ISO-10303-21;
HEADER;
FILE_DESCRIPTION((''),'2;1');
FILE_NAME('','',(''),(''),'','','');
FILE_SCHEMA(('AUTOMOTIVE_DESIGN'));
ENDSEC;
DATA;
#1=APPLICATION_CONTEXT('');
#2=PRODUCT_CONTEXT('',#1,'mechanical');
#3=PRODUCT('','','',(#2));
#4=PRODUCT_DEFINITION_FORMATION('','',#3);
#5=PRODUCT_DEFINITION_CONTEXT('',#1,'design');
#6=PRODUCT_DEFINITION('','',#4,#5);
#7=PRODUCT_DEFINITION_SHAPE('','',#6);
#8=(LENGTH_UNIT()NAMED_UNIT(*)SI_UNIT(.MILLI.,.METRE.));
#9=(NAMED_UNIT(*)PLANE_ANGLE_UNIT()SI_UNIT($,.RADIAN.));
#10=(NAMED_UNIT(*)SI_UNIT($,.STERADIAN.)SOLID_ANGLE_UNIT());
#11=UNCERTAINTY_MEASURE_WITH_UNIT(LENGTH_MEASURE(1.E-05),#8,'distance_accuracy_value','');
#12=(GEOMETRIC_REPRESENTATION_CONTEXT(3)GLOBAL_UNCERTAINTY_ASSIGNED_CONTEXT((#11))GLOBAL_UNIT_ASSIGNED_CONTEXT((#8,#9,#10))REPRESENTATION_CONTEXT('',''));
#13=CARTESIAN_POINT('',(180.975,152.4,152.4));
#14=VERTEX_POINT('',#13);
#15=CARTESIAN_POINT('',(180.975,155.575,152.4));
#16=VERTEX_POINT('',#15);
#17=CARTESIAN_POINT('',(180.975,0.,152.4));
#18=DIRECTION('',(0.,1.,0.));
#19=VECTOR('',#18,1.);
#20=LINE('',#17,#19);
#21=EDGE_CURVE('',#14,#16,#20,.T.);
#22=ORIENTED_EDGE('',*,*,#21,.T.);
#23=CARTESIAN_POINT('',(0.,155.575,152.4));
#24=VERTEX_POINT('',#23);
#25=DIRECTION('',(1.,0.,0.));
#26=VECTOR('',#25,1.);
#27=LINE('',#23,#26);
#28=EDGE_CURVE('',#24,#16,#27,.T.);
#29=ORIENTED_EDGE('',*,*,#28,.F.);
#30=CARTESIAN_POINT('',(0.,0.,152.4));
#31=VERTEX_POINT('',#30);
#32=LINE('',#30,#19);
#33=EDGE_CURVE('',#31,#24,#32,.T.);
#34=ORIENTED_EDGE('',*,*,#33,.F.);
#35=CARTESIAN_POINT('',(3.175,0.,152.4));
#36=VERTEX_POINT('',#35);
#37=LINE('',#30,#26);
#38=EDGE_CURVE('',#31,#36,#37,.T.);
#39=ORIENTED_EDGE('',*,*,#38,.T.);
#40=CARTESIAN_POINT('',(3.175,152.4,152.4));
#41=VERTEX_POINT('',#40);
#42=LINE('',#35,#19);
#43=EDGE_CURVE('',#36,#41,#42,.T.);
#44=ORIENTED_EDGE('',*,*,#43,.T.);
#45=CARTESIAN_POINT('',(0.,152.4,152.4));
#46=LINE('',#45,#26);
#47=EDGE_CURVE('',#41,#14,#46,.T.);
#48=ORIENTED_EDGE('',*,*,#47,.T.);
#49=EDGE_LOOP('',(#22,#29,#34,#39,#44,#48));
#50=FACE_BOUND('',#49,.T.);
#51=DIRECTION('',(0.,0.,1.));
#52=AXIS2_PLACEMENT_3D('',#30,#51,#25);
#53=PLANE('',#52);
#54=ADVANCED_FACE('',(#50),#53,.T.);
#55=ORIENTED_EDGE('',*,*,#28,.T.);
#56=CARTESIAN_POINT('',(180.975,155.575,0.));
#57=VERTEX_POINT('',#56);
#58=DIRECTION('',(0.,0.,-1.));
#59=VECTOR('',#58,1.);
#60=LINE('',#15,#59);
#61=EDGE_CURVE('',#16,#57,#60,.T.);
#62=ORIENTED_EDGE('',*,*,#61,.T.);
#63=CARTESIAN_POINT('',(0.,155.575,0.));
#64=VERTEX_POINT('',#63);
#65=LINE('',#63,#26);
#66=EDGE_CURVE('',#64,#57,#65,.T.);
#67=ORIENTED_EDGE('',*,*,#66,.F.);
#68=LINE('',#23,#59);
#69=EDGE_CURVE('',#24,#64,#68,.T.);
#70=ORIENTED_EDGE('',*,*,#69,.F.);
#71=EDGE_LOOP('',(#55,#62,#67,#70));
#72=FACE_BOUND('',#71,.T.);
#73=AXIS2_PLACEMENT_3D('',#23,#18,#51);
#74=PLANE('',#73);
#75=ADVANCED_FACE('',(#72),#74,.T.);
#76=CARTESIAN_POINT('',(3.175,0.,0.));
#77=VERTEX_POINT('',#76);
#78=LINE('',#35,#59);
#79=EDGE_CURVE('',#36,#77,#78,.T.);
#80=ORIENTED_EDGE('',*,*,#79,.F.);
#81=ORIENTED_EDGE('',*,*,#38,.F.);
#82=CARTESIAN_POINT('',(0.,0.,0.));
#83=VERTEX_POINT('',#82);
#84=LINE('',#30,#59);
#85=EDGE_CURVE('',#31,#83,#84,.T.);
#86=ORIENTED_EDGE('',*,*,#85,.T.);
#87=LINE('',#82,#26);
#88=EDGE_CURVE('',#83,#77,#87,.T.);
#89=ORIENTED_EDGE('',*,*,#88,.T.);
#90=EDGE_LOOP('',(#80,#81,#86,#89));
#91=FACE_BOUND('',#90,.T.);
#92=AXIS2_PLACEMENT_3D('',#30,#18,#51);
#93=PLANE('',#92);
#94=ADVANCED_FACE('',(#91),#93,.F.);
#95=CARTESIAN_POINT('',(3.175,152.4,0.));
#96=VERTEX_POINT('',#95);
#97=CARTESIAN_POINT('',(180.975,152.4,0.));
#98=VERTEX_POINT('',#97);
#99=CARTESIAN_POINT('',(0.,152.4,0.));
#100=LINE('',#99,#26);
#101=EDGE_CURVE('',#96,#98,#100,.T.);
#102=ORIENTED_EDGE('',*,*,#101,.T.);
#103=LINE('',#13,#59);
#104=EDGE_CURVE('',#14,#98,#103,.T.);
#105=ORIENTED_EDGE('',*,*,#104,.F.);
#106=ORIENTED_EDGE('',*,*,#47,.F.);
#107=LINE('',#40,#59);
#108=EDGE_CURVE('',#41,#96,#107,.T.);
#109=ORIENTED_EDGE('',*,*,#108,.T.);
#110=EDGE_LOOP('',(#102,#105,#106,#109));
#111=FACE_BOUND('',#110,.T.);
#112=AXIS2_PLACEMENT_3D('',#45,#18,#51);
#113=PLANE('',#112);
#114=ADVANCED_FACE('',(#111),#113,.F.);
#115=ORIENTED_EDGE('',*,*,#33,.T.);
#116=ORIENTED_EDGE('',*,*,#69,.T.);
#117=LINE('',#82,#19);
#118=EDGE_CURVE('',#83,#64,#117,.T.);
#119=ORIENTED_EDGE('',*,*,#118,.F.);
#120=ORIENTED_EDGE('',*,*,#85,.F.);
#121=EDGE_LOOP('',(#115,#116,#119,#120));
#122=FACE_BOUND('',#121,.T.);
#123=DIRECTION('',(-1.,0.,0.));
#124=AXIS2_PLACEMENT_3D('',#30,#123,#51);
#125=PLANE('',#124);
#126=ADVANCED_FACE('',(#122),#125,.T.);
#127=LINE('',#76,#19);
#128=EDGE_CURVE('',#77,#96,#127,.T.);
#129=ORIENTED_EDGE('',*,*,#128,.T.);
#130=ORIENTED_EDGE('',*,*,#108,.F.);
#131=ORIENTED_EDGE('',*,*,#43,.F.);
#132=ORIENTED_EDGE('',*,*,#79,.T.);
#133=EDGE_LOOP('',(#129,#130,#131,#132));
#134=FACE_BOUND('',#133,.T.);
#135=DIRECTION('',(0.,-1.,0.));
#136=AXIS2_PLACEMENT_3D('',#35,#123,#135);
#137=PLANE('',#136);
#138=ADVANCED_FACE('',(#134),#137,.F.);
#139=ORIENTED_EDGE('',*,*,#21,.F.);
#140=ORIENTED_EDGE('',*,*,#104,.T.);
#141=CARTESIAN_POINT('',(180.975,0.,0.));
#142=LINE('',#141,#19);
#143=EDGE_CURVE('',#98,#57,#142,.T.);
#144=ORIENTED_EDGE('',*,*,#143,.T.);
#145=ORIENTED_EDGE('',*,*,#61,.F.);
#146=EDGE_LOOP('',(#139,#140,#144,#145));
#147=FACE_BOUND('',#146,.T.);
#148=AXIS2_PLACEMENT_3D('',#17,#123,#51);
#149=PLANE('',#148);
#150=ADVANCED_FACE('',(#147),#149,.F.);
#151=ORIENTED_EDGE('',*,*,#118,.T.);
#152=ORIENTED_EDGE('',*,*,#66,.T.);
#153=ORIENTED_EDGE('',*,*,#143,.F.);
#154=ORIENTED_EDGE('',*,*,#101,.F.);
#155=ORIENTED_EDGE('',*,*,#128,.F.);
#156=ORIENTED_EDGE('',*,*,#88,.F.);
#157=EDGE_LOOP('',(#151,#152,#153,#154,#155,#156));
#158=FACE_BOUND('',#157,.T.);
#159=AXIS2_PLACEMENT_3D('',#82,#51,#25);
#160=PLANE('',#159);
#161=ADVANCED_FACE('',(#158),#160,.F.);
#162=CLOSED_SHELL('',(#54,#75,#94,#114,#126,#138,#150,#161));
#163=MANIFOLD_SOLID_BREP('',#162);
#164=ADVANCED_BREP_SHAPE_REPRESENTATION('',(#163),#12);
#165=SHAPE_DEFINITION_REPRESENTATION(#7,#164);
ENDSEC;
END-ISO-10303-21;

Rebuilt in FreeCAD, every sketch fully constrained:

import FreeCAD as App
import Part
import Sketcher
Q = App.Units.Quantity


def add_polygon(sketch, points):
    """Adds a closed chain of lines whose ends are joined by coincident constraints."""
    first, n = sketch.GeometryCount, len(points)
    for a, b in zip(points, points[1:] + points[:1]):
        sketch.addGeometry(Part.LineSegment(App.Vector(*a, 0), App.Vector(*b, 0)), False)
    for i in range(n):
        sketch.addConstraint(Sketcher.Constraint("Coincident", first + i, 2, first + (i + 1) % n, 1))

doc = App.newDocument("Part")
body = doc.addObject("PartDesign::Body", "Body")

sketch1 = body.newObject("Sketcher::SketchObject", "Sketch")
sketch1.AttachmentSupport = (doc.getObject("XY_Plane"), [""])
sketch1.MapMode = "FlatFace"
add_polygon(sketch1, [(0, 155.6), (0, 0), (3.2, 0), (3.2, 152.4), (181, 152.4), (181, 155.6)])
sketch1.addConstraint([
    Sketcher.Constraint("Vertical", 0),
    Sketcher.Constraint("Horizontal", 1),
    Sketcher.Constraint("Vertical", 2),
    Sketcher.Constraint("Horizontal", 3),
    Sketcher.Constraint("Vertical", 4),
    Sketcher.Constraint("Horizontal", 5),
    Sketcher.Constraint("Coincident", 0, 2, -1, 1),
    Sketcher.Constraint("Equal", 1, 4),
    Sketcher.Constraint("DistanceX", 3, 1, 3, 2, Q("7 in")),
    Sketcher.Constraint("DistanceY", 2, 1, 2, 2, Q("6 in")),
    Sketcher.Constraint("DistanceX", 1, 1, 1, 2, Q("0.125 in")),
])
pad1 = body.newObject("PartDesign::Pad", "Pad")
pad1.Profile = sketch1
pad1.Length = Q("6 in")

doc.recompute()
